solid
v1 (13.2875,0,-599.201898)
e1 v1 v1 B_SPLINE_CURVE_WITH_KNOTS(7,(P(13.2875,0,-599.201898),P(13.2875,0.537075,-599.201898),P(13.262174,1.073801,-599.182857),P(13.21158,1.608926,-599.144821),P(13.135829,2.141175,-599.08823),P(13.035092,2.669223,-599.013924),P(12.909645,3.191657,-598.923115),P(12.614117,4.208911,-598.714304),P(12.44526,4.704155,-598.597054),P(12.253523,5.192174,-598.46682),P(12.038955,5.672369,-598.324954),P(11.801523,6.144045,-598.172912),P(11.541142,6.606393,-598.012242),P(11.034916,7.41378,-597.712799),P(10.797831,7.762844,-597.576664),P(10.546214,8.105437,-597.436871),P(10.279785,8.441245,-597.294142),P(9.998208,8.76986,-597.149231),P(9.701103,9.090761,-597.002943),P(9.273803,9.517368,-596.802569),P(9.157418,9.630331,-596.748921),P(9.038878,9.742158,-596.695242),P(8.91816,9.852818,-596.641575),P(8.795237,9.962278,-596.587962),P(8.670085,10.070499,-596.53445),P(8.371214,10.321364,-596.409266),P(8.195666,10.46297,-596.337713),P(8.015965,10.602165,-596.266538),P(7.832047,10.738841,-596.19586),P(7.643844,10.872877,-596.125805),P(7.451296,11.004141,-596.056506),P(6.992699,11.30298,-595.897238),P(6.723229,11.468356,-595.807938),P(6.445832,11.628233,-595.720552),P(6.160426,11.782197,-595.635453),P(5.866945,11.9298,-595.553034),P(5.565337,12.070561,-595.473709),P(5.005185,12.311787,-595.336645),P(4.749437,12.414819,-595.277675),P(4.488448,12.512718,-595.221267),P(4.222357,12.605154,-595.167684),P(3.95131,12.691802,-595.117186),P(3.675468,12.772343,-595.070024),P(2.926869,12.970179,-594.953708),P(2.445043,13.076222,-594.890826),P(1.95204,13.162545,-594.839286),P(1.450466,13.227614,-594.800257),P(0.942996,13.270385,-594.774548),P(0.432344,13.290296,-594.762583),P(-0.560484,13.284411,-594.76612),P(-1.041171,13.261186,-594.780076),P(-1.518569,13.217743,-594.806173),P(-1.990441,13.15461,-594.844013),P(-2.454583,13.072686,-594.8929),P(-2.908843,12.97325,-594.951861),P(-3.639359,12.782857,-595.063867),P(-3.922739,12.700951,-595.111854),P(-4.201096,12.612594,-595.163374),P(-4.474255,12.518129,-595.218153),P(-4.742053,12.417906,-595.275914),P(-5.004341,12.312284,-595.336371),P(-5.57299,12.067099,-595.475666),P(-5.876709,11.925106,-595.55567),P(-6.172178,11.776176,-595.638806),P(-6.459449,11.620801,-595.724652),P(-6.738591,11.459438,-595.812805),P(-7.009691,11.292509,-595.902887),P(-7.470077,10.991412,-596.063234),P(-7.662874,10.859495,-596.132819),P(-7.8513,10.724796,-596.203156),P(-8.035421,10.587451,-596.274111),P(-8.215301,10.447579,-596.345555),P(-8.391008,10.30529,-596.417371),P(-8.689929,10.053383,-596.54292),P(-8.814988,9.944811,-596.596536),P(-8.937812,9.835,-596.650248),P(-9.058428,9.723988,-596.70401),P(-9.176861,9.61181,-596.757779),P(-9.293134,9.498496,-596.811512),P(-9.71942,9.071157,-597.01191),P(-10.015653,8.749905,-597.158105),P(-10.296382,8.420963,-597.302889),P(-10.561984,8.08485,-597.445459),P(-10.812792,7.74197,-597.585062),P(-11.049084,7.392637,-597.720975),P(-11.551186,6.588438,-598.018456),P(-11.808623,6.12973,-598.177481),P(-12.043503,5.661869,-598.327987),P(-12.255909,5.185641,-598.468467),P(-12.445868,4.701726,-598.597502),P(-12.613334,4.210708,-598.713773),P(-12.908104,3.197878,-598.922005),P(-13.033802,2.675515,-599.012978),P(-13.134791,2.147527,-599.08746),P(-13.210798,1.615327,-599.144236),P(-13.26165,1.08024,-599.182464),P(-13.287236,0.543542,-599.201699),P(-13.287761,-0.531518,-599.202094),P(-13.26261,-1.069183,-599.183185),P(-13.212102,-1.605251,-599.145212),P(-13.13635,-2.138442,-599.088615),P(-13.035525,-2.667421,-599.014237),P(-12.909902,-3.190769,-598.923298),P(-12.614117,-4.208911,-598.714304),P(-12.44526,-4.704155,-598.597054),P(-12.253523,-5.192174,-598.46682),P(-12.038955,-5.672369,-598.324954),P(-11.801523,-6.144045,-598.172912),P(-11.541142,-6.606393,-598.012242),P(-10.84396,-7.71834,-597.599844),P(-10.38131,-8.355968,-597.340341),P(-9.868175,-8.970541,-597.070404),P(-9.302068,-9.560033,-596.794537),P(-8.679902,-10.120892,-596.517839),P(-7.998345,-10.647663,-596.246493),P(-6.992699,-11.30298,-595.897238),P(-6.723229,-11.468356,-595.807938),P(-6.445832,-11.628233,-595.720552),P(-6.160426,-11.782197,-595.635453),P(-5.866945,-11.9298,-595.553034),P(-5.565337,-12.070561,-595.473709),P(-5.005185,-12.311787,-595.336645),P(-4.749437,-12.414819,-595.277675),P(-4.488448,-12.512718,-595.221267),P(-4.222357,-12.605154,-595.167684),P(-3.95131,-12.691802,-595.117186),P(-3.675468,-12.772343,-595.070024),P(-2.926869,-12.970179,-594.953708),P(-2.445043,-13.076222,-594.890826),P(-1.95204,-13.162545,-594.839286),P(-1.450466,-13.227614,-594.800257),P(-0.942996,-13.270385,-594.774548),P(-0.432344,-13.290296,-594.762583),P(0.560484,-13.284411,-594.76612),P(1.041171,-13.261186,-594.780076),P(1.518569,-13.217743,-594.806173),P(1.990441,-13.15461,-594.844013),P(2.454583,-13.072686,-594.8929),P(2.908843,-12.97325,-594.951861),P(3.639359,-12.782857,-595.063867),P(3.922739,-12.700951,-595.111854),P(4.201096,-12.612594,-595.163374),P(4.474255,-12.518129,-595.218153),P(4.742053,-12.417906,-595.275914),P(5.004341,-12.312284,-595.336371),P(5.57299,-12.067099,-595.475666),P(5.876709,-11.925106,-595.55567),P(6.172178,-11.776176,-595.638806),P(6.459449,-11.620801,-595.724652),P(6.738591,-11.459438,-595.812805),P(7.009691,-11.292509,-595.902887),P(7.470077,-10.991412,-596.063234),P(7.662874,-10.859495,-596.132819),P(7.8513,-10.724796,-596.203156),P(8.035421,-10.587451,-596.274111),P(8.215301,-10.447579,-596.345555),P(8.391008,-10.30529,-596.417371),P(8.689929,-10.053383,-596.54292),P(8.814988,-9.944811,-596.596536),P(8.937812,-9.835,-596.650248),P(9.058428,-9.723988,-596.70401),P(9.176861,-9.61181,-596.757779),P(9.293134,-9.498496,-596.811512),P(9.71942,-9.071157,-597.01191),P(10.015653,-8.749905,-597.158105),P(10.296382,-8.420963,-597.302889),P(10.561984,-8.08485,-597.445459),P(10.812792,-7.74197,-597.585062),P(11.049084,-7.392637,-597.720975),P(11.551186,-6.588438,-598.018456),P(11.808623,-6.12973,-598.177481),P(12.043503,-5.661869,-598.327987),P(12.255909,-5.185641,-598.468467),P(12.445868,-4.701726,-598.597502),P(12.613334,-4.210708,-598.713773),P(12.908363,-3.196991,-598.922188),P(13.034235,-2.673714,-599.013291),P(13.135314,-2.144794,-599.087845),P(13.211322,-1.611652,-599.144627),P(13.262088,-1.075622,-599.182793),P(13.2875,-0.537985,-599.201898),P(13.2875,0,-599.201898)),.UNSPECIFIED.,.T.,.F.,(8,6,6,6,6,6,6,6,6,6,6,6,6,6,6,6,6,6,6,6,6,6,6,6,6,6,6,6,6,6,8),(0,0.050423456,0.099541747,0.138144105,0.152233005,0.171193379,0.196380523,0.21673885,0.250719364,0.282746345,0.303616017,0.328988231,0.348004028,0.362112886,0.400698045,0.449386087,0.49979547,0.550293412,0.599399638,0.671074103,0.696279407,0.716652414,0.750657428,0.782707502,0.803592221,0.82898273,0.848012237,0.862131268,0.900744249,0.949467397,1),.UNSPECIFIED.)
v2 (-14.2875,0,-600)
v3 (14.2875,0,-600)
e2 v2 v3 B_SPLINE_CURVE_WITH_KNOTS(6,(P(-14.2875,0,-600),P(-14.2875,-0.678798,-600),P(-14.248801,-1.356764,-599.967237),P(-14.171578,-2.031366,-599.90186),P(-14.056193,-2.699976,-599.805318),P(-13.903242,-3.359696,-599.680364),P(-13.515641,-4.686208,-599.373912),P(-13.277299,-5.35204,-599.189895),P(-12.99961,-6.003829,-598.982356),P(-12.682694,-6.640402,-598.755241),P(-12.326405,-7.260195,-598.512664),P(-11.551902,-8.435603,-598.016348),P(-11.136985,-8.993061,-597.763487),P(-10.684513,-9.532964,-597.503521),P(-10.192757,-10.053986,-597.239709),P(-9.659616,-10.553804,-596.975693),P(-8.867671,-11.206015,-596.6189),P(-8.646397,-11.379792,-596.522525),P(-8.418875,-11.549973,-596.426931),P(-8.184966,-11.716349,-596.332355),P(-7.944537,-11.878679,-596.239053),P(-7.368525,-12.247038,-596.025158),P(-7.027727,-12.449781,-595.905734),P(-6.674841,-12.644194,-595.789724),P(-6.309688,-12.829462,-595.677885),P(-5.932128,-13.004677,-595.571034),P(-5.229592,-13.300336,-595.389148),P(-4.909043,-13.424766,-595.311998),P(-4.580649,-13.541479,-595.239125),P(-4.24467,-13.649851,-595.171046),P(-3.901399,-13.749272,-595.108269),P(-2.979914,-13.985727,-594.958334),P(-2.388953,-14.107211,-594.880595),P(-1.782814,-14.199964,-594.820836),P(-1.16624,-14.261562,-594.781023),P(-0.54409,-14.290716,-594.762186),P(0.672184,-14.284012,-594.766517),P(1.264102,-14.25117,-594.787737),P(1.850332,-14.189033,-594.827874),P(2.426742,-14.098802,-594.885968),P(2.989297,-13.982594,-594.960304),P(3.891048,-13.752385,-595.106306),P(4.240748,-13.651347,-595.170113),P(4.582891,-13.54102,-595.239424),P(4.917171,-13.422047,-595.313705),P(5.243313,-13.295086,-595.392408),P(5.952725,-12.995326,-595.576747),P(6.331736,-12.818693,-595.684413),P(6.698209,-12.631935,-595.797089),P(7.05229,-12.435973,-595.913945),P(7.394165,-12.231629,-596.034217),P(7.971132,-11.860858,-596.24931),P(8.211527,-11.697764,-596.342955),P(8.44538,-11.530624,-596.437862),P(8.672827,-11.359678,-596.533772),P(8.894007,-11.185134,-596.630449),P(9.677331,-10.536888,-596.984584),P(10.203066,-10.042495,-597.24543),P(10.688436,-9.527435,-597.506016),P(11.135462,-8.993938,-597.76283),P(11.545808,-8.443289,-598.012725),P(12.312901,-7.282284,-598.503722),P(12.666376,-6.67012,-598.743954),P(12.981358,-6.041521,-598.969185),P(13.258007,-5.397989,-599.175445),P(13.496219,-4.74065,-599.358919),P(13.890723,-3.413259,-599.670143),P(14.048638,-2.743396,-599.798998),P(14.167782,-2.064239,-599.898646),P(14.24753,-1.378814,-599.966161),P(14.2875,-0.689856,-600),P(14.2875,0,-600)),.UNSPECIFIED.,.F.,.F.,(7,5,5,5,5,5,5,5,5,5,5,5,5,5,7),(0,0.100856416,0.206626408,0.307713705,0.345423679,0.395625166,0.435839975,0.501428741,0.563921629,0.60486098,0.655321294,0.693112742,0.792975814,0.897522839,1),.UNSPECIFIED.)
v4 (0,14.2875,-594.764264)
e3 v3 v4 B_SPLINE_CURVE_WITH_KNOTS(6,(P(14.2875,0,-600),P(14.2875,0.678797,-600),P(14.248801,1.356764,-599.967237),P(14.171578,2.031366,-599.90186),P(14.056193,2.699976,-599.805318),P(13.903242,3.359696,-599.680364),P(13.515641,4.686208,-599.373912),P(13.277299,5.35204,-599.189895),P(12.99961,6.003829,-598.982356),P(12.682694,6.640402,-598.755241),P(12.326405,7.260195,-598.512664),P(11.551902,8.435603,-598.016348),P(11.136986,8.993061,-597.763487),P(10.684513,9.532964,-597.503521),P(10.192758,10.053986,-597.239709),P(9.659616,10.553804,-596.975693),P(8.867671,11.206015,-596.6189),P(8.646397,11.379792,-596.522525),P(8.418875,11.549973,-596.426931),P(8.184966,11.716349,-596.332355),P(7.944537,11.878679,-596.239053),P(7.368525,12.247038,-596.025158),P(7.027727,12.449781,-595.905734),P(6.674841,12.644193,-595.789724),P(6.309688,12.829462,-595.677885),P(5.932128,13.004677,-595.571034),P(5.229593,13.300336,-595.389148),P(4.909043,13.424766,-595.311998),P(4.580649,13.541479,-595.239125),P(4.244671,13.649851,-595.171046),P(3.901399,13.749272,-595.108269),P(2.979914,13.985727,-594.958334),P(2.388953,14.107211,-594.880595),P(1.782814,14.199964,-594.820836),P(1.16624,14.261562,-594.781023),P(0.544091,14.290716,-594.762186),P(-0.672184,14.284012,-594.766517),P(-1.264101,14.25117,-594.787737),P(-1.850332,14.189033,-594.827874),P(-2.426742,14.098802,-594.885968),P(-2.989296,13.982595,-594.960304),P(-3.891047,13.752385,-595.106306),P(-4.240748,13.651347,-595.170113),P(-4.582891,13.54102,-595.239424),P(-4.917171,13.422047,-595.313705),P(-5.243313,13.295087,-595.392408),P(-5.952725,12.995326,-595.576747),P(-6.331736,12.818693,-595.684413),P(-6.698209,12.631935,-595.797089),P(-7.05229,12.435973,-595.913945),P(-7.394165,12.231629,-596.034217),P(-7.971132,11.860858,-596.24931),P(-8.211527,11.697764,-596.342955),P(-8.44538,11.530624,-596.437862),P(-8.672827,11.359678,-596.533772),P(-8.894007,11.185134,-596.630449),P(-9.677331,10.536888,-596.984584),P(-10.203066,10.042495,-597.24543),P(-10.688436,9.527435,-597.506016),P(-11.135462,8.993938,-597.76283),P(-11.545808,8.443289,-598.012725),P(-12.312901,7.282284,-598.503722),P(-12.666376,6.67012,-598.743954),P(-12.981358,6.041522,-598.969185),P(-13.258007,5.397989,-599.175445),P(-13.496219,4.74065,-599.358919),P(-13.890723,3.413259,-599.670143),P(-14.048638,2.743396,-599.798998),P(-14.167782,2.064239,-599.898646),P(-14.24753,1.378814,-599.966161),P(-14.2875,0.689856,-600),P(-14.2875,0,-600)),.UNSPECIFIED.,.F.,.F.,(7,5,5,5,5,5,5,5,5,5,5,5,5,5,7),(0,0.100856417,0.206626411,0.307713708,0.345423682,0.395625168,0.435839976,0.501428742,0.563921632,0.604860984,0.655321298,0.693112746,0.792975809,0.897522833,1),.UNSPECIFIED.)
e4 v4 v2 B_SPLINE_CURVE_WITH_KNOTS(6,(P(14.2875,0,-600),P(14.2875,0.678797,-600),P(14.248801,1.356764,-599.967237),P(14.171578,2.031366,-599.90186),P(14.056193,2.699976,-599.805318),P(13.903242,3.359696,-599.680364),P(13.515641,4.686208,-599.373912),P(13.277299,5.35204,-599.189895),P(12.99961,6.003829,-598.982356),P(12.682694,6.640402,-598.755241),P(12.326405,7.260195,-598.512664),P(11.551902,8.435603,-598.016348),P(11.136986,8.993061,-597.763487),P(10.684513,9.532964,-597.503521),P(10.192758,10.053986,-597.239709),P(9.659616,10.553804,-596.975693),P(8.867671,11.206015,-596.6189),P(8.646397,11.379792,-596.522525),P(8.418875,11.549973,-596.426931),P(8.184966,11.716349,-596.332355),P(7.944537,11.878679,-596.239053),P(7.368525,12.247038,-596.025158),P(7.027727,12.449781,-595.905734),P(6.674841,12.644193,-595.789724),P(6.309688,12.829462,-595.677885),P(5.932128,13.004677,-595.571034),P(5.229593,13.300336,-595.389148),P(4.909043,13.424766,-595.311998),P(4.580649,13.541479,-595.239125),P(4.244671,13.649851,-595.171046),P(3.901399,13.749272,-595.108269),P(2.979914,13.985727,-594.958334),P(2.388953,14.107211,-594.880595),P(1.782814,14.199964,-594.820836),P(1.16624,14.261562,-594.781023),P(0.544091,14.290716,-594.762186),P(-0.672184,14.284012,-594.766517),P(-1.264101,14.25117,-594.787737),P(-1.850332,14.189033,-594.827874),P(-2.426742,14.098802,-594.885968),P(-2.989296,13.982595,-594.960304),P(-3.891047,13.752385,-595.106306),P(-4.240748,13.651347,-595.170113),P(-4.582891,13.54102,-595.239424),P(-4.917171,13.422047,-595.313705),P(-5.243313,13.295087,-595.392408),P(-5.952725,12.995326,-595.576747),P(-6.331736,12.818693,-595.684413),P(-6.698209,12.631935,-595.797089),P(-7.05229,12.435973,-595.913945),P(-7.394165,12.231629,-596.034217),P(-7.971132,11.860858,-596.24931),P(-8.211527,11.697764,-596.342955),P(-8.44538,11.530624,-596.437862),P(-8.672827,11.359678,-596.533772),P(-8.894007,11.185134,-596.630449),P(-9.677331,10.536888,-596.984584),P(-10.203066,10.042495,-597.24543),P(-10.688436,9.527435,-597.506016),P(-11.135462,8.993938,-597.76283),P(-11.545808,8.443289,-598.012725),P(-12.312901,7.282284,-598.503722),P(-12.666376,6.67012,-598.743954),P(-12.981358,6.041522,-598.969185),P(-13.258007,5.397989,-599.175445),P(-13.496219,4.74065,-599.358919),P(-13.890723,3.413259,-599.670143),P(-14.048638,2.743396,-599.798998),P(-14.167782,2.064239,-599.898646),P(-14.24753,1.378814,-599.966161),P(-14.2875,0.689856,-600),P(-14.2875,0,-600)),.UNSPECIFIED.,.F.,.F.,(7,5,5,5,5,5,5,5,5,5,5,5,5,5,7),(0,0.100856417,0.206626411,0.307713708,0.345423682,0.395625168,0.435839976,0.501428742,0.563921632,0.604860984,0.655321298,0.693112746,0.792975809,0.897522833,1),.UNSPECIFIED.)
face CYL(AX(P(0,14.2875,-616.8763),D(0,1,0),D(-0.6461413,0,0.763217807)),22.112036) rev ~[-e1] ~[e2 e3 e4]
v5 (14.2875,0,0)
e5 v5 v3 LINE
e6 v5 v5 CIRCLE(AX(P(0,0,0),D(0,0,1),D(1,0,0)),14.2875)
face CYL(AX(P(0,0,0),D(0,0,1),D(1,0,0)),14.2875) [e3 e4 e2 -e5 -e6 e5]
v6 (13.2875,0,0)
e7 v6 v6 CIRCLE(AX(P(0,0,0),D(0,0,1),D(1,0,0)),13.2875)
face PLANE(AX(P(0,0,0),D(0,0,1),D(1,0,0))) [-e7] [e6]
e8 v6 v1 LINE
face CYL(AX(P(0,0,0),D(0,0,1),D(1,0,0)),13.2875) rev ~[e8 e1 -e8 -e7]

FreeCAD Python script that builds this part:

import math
import FreeCAD as App
import Part
import Sketcher

V = App.Vector
Q = App.Units.Quantity

doc = App.newDocument("Part")
body = doc.addObject("PartDesign::Body", "Body")

# Sketch on XY plane
sketch1 = body.newObject("Sketcher::SketchObject", "Sketch")
sketch1.AttachmentSupport = (doc.getObject("XY_Plane"), [""])
sketch1.MapMode = "FlatFace"
sketch1.addGeometry(Part.Circle(V(0, 0, 0), V(0, 0, 1), 14.2875), False)
sketch1.addGeometry(Part.Circle(V(0, 0, 0), V(0, 0, 1), 13.2875), False)
sketch1.addConstraint(Sketcher.Constraint("Coincident", 0, 3, -1, 1))
sketch1.addConstraint(Sketcher.Constraint("Coincident", 1, 3, -1, 1))
sketch1.addConstraint(Sketcher.Constraint("Diameter", 0, Q("28.575 mm")))
sketch1.addConstraint(Sketcher.Constraint("Diameter", 1, Q("26.575 mm")))
pad1 = body.newObject("PartDesign::Pad", "Pad")
pad1.Profile = sketch1
pad1.Length = 600
pad1.Reversed = True

# Sketch on XZ plane
sketch2 = body.newObject("Sketcher::SketchObject", "Sketch001")
sketch2.AttachmentSupport = (doc.getObject("XZ_Plane"), [""])
sketch2.MapMode = "FlatFace"
sketch2.AttachmentOffset = App.Placement(V(0, 0, -14.2875), App.Rotation())
sketch2.addGeometry(Part.LineSegment(V(14.2875, -600, 0), V(-14.2875, -600, 0)), False)
sketch2.addGeometry(Part.ArcOfCircle(Part.Circle(V(0, -616.8763, 0), V(0, 0, 1), 22.112036), math.radians(49.7487), math.radians(130.2513)), False)
sketch2.addConstraint(Sketcher.Constraint("Coincident", 0, 1, 1, 1))
sketch2.addConstraint(Sketcher.Constraint("Coincident", 1, 2, 0, 2))
sketch2.addConstraint(Sketcher.Constraint("Horizontal", 0))
sketch2.addConstraint(Sketcher.Constraint("PointOnObject", 1, 3, -2))
sketch2.addConstraint(Sketcher.Constraint("Radius", 1, Q("22.112 mm")))
sketch2.addConstraint(Sketcher.Constraint("DistanceY", 0, 1, -1, 1, Q("600 mm")))
sketch2.addConstraint(Sketcher.Constraint("DistanceX", 0, 2, 0, 1, Q("28.575 mm")))
pocket1 = body.newObject("PartDesign::Pocket", "Pocket")
pocket1.Profile = sketch2
pocket1.Type = "ThroughAll"
pocket1.Reversed = True

doc.recompute()
